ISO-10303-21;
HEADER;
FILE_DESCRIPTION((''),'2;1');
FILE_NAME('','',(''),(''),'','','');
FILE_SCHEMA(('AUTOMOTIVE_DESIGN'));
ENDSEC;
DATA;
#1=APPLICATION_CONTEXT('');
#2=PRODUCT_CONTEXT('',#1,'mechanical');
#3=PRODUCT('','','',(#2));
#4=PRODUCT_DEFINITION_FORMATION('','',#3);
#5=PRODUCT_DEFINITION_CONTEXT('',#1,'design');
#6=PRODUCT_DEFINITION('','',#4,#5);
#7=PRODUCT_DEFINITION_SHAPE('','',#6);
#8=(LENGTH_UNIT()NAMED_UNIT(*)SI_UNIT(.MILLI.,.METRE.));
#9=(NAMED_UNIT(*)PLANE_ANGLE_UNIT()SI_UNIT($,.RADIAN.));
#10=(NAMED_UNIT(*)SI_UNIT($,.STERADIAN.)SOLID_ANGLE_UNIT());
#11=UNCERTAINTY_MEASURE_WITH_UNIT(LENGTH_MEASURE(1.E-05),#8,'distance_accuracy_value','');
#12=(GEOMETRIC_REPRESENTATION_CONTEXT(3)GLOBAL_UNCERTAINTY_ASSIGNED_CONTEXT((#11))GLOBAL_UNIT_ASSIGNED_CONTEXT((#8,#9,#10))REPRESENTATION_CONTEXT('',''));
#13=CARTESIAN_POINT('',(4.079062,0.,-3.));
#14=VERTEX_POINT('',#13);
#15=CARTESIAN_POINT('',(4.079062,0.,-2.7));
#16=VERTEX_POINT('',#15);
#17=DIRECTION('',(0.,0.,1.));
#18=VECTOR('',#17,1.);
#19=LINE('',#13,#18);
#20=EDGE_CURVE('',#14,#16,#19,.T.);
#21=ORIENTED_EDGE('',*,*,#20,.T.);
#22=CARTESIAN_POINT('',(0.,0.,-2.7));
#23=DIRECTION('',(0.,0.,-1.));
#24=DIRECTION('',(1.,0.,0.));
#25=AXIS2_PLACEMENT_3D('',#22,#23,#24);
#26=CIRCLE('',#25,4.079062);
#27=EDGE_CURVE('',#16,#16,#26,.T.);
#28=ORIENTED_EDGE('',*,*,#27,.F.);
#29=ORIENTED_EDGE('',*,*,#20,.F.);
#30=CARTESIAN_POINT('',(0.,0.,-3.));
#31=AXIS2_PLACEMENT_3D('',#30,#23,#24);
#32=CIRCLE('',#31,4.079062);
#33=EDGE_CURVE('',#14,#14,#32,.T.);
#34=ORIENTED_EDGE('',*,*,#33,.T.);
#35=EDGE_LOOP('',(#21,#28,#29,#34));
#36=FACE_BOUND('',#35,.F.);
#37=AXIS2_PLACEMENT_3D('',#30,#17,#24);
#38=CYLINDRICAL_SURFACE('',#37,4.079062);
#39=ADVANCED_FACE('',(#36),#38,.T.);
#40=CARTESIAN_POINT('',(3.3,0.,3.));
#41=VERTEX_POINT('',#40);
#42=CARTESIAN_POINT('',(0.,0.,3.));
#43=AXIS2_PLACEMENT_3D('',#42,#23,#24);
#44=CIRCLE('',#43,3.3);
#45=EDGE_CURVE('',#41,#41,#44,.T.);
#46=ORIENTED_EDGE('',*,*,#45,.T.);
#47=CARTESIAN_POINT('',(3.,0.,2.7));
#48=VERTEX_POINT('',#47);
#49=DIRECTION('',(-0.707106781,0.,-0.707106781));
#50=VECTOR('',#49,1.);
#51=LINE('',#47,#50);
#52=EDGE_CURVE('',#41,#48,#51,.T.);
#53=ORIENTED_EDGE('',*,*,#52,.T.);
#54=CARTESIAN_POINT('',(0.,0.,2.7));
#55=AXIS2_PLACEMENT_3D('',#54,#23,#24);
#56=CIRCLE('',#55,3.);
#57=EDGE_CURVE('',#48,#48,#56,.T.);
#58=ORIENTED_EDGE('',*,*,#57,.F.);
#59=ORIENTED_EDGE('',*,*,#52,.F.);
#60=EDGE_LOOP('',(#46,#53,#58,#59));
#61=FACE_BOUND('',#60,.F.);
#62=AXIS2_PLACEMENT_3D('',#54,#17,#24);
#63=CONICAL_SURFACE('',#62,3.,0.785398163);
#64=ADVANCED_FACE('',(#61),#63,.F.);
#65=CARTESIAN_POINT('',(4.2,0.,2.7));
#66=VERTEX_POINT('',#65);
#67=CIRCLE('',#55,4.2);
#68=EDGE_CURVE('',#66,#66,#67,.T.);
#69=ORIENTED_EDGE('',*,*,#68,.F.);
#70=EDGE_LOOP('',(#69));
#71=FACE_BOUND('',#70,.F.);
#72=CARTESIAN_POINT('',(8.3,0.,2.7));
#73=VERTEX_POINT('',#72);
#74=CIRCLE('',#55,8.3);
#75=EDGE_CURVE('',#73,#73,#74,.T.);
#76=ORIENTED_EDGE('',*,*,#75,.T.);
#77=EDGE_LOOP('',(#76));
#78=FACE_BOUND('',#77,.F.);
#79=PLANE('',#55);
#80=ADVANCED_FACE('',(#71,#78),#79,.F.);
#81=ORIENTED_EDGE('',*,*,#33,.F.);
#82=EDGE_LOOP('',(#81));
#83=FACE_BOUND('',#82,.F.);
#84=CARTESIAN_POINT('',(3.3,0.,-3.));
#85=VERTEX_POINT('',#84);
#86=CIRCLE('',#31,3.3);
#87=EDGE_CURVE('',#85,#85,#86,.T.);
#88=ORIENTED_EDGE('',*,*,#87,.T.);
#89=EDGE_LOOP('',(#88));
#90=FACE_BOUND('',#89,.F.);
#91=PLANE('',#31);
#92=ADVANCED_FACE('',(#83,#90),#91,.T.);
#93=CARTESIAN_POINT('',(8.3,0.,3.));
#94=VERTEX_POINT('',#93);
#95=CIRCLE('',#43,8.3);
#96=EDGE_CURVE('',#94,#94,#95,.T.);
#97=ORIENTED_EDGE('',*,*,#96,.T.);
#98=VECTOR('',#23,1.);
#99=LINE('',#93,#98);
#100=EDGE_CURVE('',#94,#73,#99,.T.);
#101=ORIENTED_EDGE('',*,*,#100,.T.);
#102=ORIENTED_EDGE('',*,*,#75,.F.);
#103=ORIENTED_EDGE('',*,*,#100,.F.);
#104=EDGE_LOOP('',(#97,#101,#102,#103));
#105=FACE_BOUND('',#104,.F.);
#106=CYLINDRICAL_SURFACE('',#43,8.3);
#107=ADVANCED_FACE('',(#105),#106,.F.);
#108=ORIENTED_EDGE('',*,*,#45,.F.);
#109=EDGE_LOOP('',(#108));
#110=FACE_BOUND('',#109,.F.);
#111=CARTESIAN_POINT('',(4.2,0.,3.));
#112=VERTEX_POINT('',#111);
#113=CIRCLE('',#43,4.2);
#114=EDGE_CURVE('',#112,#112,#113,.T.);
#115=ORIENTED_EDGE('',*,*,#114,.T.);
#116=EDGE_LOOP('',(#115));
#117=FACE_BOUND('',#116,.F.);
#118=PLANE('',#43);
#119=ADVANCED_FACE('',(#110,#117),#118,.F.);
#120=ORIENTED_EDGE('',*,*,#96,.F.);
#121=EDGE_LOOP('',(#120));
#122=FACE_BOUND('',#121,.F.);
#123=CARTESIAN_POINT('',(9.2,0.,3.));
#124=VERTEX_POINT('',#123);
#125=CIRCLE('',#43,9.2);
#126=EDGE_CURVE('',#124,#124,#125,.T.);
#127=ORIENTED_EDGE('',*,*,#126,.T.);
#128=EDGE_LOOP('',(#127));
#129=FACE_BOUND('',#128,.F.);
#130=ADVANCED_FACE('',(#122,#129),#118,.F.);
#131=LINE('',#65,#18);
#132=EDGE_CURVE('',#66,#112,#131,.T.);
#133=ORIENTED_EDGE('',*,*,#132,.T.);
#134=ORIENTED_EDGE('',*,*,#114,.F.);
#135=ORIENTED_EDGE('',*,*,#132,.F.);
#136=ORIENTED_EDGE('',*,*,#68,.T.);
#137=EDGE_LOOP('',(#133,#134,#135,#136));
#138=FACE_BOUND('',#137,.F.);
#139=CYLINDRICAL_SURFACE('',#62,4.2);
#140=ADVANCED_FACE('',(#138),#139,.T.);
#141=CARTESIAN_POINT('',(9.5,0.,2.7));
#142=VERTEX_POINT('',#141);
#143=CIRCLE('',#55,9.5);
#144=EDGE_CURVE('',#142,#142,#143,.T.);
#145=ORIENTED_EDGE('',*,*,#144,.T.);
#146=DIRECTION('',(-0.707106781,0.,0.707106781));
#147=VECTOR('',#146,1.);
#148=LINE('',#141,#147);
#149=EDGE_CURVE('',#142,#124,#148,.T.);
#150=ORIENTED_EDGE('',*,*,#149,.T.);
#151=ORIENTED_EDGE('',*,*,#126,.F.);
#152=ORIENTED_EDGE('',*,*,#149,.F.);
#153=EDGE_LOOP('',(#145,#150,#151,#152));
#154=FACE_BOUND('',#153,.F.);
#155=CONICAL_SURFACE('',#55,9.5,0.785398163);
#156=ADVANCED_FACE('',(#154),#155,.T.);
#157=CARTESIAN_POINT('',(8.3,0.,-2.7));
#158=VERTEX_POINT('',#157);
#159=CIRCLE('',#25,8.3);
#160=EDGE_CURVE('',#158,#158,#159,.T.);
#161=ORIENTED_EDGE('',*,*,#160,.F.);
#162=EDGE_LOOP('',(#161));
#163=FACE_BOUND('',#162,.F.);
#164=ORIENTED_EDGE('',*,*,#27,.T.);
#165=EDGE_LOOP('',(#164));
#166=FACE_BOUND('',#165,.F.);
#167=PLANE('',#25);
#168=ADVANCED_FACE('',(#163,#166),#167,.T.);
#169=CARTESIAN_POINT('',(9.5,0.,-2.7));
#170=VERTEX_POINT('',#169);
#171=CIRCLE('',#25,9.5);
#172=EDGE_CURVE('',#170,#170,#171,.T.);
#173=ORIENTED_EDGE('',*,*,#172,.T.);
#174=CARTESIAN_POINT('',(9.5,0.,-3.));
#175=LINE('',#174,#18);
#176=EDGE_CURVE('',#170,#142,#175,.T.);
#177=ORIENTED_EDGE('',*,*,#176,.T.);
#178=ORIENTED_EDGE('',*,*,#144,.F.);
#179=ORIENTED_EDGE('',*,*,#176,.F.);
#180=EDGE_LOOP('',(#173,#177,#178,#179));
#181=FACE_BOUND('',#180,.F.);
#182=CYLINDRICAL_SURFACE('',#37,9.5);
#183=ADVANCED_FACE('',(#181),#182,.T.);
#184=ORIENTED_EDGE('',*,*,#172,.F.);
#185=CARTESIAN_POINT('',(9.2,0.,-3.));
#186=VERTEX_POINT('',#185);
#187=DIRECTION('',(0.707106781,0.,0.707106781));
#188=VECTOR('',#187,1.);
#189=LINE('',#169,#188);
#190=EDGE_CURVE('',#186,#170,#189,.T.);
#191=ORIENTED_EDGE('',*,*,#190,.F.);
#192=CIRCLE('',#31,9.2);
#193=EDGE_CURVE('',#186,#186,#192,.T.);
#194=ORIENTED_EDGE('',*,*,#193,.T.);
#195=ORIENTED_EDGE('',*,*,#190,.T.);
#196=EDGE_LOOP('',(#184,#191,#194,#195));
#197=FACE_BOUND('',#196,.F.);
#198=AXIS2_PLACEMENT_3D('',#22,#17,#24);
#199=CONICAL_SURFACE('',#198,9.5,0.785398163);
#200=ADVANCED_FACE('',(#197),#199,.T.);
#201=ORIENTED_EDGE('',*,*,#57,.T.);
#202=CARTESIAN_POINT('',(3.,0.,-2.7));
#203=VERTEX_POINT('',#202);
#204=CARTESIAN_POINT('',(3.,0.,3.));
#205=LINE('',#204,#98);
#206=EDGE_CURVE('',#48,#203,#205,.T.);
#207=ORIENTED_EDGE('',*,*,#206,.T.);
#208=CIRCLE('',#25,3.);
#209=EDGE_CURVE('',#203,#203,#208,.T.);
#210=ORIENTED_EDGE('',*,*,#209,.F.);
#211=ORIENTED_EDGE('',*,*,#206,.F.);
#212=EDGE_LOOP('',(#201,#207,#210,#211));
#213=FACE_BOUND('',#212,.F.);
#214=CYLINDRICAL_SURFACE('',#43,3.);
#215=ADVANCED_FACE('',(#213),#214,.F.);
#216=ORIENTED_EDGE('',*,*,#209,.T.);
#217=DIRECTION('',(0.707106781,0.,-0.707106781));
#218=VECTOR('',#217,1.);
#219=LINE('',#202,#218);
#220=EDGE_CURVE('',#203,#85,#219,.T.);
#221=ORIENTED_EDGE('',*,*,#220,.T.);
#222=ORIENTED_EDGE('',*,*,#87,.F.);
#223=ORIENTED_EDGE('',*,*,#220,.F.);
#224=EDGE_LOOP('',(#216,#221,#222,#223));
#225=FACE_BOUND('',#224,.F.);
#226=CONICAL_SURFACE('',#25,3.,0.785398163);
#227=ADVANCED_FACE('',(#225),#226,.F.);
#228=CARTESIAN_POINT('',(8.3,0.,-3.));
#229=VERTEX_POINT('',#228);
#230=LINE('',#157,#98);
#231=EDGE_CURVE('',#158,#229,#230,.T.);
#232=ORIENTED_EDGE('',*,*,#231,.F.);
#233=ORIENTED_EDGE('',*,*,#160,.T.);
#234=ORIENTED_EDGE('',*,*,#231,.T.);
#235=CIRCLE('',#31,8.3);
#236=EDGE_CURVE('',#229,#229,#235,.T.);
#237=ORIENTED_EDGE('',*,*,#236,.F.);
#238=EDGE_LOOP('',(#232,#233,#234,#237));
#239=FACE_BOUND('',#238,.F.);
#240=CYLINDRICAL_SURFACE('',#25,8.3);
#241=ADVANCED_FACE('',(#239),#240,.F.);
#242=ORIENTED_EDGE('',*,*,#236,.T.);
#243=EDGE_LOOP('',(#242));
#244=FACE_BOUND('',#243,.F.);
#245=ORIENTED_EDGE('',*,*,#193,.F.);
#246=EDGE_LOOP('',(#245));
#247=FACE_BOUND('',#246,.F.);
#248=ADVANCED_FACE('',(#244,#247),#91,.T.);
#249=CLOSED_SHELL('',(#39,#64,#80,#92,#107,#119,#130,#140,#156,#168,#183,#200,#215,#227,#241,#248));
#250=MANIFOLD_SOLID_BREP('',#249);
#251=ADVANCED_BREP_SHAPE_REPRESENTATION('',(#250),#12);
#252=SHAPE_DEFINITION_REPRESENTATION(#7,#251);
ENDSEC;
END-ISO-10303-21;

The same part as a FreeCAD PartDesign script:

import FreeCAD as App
import Part
import Sketcher


def edges_at(feature, points):
    """Names of the edges that pass closest to the given points."""
    edges = feature.Shape.Edges
    near = lambda p: min(range(len(edges)), key=lambda i: edges[i].distToShape(Part.Vertex(*p))[0])
    return sorted({f"Edge{near(p) + 1}" for p in points})


def add_polygon(sketch, points):
    """Adds a closed chain of lines whose ends are joined by coincident constraints."""
    first, n = sketch.GeometryCount, len(points)
    for a, b in zip(points, points[1:] + points[:1]):
        sketch.addGeometry(Part.LineSegment(App.Vector(*a, 0), App.Vector(*b, 0)), False)
    for i in range(n):
        sketch.addConstraint(Sketcher.Constraint("Coincident", first + i, 2, first + (i + 1) % n, 1))

doc = App.newDocument("Part")
body = doc.addObject("PartDesign::Body", "Body")

# Sketch on XZ plane
sketch1 = body.newObject("Sketcher::SketchObject", "Sketch")
sketch1.AttachmentSupport = (doc.getObject("XZ_Plane"), [""])
sketch1.MapMode = "FlatFace"
add_polygon(sketch1, [(4.2, 3), (3, 3), (3, -3), (4.08, -3), (4.08, -2.7), (8.3, -2.7), (8.3, -3), (9.5, -3), (9.5, 3), (8.3, 3), (8.3, 2.7), (4.2, 2.7)])  # lines 0-11
sketch1.addConstraint([
    Sketcher.Constraint("Horizontal", 0),
    Sketcher.Constraint("Vertical", 1),
    Sketcher.Constraint("Horizontal", 2),
    Sketcher.Constraint("Vertical", 3),
    Sketcher.Constraint("Horizontal", 4),
    Sketcher.Constraint("Vertical", 5),
    Sketcher.Constraint("Horizontal", 6),
    Sketcher.Constraint("Vertical", 7),
    Sketcher.Constraint("Horizontal", 8),
    Sketcher.Constraint("Vertical", 9),
    Sketcher.Constraint("Horizontal", 10),
    Sketcher.Constraint("Vertical", 11),
    Sketcher.Constraint("Symmetric", 5, 2, 8, 2, -1),
    Sketcher.Constraint("Horizontal", 2, 2, 5, 2),
    Sketcher.Constraint("Horizontal", 0, 2, 7, 2),
    Sketcher.Constraint("Equal", 0, 6),
    Sketcher.Constraint("Equal", 5, 9),
    Sketcher.Constraint("DistanceY", 1, 2, 1, 1, 6.0),
    Sketcher.Constraint("DistanceX", 0, 2, 0, 1, 1.2),
    Sketcher.Constraint("DistanceX", 10, 2, 10, 1, 4.1),
    Sketcher.Constraint("DistanceY", 3, 1, 3, 2, 0.3),
    Sketcher.Constraint("DistanceX", -1, 1, 0, 2, 3.0),
    Sketcher.Constraint("DistanceX", 4, 1, 4, 2, 4.220938),
])
revolution = body.newObject("PartDesign::Revolution", "Revolution")
revolution.Profile = sketch1
revolution.ReferenceAxis = (sketch1, ["V_Axis"])
revolution.Angle = 360
doc.recompute()

chamfer = body.newObject("PartDesign::Chamfer", "Chamfer")
chamfer.Base = (revolution, edges_at(revolution, [
    (-9.5, 0, 3),
    (-9.5, 0, -3),
    (-3, 0, 3),
    (-3, 0, -3),
]))
chamfer.Size = 0.3

doc.recompute()
